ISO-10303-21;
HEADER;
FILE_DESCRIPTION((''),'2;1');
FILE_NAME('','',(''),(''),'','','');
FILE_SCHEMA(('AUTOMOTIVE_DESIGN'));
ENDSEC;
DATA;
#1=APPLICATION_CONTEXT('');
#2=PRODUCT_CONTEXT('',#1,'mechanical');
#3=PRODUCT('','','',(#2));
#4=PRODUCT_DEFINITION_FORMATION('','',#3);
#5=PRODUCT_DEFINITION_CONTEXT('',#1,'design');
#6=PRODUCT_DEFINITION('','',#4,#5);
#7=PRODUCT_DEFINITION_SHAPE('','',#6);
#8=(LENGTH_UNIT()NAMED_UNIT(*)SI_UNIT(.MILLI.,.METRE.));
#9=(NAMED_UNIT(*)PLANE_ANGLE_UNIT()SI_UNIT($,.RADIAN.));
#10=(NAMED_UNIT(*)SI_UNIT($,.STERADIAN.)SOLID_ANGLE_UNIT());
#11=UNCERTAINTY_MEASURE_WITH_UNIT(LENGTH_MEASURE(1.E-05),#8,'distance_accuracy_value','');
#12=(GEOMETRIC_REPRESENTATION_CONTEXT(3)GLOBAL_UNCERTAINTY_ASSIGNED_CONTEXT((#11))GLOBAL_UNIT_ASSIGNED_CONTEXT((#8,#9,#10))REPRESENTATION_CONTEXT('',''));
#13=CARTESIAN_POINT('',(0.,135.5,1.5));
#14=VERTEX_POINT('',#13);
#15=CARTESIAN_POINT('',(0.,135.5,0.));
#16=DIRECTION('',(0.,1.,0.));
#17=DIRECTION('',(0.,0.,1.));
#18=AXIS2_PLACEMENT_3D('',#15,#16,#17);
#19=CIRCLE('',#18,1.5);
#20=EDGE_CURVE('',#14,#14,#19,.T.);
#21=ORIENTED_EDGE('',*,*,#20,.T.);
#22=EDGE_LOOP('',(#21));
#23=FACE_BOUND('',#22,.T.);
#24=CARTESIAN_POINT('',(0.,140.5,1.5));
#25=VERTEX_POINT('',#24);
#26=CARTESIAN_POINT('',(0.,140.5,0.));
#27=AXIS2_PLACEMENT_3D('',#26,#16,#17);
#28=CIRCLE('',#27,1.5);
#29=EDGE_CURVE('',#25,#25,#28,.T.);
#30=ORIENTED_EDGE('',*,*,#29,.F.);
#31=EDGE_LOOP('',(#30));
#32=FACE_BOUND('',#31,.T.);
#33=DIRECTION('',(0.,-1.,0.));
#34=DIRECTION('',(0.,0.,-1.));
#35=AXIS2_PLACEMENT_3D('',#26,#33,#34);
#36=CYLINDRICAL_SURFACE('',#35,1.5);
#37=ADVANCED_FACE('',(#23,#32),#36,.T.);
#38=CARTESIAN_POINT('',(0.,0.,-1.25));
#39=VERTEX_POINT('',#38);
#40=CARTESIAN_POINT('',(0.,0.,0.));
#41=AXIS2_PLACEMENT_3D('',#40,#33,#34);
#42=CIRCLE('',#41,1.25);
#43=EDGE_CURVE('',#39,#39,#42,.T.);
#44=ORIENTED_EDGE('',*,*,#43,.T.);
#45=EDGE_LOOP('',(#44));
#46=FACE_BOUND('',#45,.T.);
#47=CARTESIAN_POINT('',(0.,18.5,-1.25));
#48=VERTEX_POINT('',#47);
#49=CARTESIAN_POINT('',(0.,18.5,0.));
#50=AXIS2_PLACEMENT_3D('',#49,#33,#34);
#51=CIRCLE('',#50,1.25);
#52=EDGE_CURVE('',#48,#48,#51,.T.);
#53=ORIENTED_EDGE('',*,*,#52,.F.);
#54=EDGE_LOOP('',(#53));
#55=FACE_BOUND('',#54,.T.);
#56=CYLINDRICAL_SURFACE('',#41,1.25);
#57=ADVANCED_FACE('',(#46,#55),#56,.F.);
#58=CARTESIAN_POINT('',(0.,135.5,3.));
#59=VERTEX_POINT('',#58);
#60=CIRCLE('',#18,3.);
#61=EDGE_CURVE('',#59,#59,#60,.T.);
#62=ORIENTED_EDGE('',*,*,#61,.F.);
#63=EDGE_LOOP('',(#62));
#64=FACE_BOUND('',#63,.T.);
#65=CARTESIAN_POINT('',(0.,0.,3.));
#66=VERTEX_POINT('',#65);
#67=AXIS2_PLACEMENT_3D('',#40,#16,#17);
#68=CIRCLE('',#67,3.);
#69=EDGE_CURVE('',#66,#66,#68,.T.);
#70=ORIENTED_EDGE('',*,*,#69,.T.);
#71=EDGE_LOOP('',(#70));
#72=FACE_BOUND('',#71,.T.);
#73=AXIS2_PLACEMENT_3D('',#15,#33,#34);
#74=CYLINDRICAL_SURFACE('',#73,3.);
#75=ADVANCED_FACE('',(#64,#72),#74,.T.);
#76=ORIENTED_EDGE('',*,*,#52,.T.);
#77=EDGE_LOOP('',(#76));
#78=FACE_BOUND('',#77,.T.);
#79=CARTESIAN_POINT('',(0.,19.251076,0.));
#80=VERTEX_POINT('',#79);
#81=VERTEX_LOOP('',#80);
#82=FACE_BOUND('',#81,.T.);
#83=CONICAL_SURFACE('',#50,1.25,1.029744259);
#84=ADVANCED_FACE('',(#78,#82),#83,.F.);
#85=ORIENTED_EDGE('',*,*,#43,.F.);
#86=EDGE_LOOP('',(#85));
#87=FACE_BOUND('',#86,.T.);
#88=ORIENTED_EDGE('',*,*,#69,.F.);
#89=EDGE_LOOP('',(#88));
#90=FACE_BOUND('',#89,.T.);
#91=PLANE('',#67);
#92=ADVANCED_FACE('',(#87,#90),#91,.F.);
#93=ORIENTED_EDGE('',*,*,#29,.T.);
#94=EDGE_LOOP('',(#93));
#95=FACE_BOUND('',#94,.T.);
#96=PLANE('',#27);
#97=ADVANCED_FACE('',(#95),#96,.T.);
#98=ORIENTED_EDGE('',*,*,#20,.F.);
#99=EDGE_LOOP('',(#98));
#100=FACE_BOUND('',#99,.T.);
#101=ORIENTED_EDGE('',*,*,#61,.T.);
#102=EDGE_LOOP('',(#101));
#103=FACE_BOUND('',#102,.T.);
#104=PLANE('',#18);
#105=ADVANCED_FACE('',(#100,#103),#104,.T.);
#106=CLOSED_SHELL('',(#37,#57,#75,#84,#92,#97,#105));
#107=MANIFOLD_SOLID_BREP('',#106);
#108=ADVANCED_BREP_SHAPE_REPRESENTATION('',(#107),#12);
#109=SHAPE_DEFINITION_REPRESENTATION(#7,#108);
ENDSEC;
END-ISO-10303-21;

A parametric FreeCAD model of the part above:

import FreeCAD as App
import Part
import Sketcher
Q = App.Units.Quantity

doc = App.newDocument("Part")
body = doc.addObject("PartDesign::Body", "Body")

sketch1 = body.newObject("Sketcher::SketchObject", "Sketch")
sketch1.AttachmentSupport = (doc.getObject("XZ_Plane"), [""])
sketch1.MapMode = "FlatFace"
sketch1.addGeometry(Part.Circle(App.Vector(0, 0, 0), App.Vector(0, 0, 1), 3), False)
sketch1.addConstraint(Sketcher.Constraint("Coincident", 0, 3, -1, 1))
sketch1.addConstraint(Sketcher.Constraint("Diameter", 0, Q("6 mm")))
pad1 = body.newObject("PartDesign::Pad", "Pad")
pad1.Profile = sketch1
pad1.Length = 135.5
pad1.Reversed = True

sketch2 = body.newObject("Sketcher::SketchObject", "Sketch001")
sketch2.AttachmentSupport = (doc.getObject("XZ_Plane"), [""])
sketch2.MapMode = "FlatFace"
sketch2.addGeometry(Part.Circle(App.Vector(0, 0, 0), App.Vector(0, 0, 1), 1.2), False)
sketch2.addConstraint(Sketcher.Constraint("Coincident", 0, 3, -1, 1))
sketch2.addConstraint(Sketcher.Constraint("Diameter", 0, Q("2.5 mm")))
doc.recompute()
hole = body.newObject("PartDesign::Hole", "Hole")
hole.Profile = sketch2
hole.ThreadType = "None"
hole.Diameter = 2.5
hole.DepthType = "Dimension"
hole.Depth = 18.5
hole.DrillPoint = "Angled"
hole.DrillPointAngle = 118

sketch3 = body.newObject("Sketcher::SketchObject", "Sketch002")
sketch3.AttachmentSupport = (doc.getObject("XZ_Plane"), [""])
sketch3.MapMode = "FlatFace"
sketch3.AttachmentOffset = App.Placement(App.Vector(0, 0, -135.5), App.Rotation())
sketch3.addGeometry(Part.Circle(App.Vector(0, 0, 0), App.Vector(0, 0, 1), 1.5), False)
sketch3.addConstraint(Sketcher.Constraint("Coincident", 0, 3, -1, 1))
sketch3.addConstraint(Sketcher.Constraint("Diameter", 0, Q("3 mm")))
pad2 = body.newObject("PartDesign::Pad", "Pad001")
pad2.Profile = sketch3
pad2.Length = 5
pad2.Reversed = True

doc.recompute()
